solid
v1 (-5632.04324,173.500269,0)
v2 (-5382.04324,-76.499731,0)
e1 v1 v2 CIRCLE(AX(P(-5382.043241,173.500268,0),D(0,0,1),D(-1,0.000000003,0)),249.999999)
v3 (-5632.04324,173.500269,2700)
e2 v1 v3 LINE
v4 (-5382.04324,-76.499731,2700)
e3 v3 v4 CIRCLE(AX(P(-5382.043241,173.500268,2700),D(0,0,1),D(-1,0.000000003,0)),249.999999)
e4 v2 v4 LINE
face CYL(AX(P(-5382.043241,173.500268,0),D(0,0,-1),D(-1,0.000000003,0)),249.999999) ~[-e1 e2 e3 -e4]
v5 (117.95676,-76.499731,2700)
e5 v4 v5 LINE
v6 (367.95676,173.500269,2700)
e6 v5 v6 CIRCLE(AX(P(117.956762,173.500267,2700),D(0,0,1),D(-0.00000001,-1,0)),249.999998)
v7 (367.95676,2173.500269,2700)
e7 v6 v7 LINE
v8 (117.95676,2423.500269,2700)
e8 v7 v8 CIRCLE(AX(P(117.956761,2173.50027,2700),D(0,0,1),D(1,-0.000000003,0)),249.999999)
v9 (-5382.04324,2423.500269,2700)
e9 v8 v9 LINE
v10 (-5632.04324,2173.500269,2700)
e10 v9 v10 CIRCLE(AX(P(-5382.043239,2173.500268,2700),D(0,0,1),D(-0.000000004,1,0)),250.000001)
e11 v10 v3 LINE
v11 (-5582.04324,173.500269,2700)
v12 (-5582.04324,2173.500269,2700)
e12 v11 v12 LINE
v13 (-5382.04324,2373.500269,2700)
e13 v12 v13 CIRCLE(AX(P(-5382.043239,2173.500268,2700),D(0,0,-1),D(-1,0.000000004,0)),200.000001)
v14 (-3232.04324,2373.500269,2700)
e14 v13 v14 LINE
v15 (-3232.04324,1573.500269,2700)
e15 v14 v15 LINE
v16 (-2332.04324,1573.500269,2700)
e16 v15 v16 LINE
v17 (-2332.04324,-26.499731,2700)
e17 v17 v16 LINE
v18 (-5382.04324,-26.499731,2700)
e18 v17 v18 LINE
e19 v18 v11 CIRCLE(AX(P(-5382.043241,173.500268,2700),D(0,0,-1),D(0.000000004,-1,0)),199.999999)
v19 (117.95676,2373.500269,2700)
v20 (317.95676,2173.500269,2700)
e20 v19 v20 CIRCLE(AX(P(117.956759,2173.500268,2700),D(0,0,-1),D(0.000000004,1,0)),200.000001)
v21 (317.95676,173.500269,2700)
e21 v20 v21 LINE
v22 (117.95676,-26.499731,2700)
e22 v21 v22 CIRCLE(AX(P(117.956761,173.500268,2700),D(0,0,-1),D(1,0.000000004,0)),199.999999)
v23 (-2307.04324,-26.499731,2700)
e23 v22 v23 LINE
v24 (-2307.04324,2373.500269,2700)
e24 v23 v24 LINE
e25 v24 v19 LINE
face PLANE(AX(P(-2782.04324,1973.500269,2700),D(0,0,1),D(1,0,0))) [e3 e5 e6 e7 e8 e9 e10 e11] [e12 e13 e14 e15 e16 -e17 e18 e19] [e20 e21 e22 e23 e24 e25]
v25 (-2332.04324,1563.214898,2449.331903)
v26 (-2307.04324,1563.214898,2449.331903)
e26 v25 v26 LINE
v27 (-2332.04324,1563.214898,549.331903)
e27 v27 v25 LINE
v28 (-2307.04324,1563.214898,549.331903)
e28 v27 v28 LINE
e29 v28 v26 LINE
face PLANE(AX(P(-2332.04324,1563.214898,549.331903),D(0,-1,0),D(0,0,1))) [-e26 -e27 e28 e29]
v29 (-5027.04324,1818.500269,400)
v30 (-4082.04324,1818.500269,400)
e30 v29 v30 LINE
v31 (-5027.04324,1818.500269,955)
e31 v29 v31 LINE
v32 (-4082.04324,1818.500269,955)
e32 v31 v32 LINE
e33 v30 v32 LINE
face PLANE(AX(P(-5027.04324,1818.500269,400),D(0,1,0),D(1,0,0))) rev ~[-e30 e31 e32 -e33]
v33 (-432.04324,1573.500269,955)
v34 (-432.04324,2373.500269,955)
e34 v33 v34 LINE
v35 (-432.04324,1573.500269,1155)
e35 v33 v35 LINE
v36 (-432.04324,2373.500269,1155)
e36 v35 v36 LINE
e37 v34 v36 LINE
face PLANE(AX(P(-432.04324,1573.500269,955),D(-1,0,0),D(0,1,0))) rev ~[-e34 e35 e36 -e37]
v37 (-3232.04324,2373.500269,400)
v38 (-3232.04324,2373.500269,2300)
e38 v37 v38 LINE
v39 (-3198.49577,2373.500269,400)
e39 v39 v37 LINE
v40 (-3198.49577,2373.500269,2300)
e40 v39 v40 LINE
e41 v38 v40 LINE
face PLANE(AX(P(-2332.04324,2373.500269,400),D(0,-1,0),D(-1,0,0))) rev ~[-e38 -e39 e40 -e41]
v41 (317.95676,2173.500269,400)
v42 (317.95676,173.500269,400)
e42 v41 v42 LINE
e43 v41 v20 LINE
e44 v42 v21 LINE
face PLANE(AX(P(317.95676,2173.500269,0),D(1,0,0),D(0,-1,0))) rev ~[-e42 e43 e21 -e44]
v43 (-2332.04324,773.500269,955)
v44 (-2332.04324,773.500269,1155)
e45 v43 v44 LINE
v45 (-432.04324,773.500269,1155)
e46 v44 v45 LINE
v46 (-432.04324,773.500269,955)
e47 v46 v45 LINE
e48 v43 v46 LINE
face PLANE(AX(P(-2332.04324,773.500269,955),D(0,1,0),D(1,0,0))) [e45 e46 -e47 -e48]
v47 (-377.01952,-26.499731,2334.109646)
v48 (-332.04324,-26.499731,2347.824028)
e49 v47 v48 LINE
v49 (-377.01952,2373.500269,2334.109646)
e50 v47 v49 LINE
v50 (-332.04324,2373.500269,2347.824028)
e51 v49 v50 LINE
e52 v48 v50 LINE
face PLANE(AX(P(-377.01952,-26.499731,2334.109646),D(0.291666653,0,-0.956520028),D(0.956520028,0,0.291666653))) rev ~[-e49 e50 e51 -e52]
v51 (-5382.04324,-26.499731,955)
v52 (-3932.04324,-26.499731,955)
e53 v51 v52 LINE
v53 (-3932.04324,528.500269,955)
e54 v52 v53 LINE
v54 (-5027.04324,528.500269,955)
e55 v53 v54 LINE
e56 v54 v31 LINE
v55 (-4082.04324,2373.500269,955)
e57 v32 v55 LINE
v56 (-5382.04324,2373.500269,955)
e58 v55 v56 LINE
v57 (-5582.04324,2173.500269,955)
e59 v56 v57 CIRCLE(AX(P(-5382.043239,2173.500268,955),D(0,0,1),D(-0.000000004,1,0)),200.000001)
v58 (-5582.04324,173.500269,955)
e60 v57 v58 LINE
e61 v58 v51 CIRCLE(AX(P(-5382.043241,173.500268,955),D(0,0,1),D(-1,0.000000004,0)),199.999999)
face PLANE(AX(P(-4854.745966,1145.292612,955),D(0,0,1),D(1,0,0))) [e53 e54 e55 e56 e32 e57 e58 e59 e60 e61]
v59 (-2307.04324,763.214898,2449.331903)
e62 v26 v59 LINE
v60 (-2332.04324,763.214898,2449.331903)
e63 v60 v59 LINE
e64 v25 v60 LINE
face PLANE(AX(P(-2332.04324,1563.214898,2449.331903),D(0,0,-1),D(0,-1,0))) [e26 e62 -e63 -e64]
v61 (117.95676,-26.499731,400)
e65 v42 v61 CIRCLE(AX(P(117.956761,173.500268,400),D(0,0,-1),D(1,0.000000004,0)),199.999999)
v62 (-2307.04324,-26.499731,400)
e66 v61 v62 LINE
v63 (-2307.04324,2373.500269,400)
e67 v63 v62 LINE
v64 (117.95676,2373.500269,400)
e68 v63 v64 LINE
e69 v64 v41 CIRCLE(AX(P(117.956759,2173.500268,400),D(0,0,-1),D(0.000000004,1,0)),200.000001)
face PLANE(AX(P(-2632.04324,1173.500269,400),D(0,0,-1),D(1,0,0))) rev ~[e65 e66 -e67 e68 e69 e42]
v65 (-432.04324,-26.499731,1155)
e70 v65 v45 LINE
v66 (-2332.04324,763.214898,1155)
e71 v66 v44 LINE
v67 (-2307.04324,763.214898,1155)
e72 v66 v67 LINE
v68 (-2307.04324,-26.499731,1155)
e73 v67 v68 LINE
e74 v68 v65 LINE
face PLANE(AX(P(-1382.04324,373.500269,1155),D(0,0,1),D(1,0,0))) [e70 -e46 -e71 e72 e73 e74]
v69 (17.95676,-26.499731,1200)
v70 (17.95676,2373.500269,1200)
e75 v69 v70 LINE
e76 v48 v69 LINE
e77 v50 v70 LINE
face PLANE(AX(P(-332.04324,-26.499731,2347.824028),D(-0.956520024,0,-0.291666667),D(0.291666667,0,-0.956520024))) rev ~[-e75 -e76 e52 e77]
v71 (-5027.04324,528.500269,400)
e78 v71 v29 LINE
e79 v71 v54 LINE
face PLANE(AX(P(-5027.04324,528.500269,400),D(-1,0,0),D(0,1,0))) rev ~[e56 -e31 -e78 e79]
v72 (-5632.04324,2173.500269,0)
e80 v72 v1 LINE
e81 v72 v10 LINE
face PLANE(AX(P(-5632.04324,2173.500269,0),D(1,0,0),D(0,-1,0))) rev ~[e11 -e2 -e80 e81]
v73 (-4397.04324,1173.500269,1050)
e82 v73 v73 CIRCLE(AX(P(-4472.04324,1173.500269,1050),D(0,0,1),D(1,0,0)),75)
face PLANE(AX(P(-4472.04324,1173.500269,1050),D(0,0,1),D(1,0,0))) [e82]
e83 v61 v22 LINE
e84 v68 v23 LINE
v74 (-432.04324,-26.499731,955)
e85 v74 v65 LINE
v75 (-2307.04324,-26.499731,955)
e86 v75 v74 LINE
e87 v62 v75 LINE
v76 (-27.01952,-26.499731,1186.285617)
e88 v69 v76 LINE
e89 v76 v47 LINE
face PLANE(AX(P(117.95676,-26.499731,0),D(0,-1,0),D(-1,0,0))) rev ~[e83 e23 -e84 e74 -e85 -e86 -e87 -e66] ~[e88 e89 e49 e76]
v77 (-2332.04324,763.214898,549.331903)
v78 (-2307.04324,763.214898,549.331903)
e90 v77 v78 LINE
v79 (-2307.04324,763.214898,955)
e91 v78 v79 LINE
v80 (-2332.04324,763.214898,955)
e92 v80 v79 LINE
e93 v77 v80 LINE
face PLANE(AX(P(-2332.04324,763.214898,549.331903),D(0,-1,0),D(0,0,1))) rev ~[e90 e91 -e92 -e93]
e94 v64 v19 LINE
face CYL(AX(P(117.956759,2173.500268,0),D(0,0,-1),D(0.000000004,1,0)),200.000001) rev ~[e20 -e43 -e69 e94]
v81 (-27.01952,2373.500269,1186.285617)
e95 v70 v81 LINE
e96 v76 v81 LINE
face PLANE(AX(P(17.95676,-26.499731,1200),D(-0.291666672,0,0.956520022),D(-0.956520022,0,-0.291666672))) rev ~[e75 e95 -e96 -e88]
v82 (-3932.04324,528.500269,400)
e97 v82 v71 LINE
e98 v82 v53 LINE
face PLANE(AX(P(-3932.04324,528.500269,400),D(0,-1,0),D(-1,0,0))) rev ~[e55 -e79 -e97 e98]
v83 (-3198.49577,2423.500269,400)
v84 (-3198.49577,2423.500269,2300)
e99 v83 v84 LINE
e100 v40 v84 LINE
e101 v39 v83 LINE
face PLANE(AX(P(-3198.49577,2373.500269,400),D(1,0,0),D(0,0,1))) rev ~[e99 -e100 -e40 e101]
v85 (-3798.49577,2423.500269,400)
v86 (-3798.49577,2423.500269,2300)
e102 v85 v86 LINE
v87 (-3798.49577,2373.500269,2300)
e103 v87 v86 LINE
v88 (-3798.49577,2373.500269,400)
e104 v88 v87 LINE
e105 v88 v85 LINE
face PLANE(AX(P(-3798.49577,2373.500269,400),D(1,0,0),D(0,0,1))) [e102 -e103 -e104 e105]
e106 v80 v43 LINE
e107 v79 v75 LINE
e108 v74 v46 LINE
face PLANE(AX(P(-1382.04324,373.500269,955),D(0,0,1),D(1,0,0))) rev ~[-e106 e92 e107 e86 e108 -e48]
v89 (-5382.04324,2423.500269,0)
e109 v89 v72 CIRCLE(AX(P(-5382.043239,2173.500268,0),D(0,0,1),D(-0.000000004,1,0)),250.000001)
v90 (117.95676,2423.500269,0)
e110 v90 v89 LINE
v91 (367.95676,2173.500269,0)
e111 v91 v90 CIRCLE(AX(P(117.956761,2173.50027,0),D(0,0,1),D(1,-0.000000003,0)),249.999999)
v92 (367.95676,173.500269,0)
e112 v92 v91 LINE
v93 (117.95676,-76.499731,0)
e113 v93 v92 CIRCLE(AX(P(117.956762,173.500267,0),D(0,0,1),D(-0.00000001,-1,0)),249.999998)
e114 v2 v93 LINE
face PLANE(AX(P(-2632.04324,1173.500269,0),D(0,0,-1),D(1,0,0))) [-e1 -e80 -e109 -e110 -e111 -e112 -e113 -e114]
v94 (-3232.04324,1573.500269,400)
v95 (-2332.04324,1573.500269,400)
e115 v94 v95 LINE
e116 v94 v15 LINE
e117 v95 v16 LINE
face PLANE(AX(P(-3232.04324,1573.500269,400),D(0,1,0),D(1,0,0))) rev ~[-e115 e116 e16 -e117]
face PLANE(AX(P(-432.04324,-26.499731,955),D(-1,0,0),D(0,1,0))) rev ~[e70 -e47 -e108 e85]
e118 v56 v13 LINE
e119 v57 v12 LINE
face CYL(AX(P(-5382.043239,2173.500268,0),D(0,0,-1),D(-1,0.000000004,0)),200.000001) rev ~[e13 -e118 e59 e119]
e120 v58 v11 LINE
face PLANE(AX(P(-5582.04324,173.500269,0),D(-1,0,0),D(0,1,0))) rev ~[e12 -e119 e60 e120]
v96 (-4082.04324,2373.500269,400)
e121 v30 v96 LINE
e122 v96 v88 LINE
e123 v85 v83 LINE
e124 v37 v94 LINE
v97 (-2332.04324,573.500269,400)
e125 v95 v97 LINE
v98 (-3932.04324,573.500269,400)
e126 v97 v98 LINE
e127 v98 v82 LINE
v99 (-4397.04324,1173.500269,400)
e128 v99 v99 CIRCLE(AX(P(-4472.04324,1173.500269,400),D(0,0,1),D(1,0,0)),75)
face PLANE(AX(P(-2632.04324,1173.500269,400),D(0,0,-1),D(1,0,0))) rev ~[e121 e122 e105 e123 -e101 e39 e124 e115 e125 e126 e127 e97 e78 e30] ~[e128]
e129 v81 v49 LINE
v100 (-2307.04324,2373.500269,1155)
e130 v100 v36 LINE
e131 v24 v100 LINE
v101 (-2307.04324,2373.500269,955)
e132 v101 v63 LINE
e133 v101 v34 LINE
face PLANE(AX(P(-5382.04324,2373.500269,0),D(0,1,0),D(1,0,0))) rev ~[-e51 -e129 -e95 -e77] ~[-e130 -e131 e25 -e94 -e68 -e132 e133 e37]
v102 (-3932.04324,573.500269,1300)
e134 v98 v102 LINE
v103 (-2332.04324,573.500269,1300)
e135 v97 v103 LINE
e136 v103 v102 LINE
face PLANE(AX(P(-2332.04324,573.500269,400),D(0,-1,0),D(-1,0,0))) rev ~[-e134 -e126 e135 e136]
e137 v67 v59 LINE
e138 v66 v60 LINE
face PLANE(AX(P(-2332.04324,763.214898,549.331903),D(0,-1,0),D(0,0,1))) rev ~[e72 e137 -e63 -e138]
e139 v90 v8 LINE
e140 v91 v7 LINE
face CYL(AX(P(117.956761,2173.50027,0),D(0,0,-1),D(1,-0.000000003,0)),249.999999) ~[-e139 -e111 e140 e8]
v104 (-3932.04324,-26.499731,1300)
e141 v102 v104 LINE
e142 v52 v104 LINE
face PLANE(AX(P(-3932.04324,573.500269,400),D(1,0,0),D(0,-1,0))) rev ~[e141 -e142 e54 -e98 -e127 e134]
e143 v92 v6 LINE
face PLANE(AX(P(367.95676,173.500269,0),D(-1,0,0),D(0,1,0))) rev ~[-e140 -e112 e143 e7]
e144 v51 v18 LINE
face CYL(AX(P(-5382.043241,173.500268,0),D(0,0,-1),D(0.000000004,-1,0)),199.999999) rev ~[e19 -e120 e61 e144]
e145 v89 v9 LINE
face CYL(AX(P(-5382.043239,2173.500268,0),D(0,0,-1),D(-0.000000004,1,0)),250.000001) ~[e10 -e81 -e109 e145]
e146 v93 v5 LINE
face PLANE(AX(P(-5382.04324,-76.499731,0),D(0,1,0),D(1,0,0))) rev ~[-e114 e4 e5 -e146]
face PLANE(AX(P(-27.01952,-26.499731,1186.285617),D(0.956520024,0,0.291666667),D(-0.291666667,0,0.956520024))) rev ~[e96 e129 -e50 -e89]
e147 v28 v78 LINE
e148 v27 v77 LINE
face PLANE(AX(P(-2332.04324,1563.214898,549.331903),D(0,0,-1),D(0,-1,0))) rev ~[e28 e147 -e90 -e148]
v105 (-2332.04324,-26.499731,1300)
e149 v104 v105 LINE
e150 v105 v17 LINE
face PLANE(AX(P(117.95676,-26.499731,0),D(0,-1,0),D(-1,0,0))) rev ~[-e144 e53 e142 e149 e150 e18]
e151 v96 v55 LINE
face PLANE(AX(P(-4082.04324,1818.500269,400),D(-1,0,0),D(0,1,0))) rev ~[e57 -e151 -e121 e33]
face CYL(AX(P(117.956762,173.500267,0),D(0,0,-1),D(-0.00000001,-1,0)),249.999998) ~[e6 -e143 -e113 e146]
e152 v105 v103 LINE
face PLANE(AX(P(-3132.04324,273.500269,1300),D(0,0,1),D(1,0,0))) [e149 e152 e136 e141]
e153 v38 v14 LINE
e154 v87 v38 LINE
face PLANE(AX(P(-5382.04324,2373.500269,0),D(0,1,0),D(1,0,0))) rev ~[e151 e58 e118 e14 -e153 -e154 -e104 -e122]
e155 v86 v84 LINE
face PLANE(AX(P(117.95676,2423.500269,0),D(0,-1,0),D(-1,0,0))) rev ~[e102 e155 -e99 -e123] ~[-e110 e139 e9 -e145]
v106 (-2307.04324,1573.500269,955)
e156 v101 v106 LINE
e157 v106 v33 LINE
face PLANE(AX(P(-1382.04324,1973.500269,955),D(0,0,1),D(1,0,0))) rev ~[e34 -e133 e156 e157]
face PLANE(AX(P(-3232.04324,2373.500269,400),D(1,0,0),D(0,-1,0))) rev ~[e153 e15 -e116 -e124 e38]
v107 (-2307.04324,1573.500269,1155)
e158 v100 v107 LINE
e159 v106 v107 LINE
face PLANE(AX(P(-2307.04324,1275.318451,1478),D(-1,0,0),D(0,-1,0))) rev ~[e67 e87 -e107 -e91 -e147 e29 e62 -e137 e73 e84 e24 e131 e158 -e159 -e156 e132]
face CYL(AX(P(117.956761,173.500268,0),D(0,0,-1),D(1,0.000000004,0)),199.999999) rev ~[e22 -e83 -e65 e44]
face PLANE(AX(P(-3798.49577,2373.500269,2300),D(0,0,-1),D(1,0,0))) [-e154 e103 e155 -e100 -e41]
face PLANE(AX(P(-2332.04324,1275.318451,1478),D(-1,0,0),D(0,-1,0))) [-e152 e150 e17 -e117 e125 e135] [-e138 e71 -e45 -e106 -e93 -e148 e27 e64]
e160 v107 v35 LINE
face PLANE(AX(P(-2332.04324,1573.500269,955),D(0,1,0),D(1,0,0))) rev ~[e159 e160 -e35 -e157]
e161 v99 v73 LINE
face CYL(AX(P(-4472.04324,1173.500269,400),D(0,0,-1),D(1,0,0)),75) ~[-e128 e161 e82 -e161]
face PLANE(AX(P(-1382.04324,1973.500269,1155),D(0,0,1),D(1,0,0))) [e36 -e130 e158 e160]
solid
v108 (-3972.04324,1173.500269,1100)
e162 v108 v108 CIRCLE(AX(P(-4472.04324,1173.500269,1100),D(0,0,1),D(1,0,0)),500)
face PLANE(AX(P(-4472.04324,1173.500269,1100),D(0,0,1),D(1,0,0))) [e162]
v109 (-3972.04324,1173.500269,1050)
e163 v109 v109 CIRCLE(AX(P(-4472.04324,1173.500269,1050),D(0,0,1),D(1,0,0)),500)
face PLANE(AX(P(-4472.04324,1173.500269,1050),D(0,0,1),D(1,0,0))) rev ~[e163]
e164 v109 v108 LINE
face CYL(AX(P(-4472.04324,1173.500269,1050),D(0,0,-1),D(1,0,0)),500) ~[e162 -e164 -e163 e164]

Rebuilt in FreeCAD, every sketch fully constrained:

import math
import FreeCAD as App
import Part
import Sketcher
Q = App.Units.Quantity

doc = App.newDocument("Part")
body = doc.addObject("PartDesign::Body", "Body")

sketch1 = body.newObject("Sketcher::SketchObject", "Sketch")
sketch1.AttachmentSupport = (doc.getObject("XY_Plane"), [""])
sketch1.MapMode = "FlatFace"
sketch1.addGeometry([
    Part.LineSegment(App.Vector(117.95676, 2423.500269, 0), App.Vector(-5382.04324, 2423.500269, 0)),
    Part.ArcOfCircle(Part.Circle(App.Vector(-5382.043239, 2173.500268, 0), App.Vector(0, 0, 1), 250.000001), math.radians(90), math.radians(180)),
    Part.LineSegment(App.Vector(-5632.04324, 2173.500269, 0), App.Vector(-5632.04324, 173.500269, 0)),
    Part.ArcOfCircle(Part.Circle(App.Vector(-5382.043241, 173.500268, 0), App.Vector(0, 0, 1), 249.999999), math.radians(180), math.radians(270)),
    Part.LineSegment(App.Vector(-5382.04324, -76.499731, 0), App.Vector(117.95676, -76.499731, 0)),
    Part.ArcOfCircle(Part.Circle(App.Vector(117.956762, 173.500267, 0), App.Vector(0, 0, 1), 249.999998), math.radians(-90.000001), math.radians(0.000001)),
    Part.LineSegment(App.Vector(367.95676, 173.500269, 0), App.Vector(367.95676, 2173.500269, 0)),
    Part.ArcOfCircle(Part.Circle(App.Vector(117.956761, 2173.50027, 0), App.Vector(0, 0, 1), 249.999999), math.radians(0), math.radians(90)),
    Part.LineSegment(App.Vector(117.95676, -26.499731, 0), App.Vector(-5382.04324, -26.499731, 0)),
    Part.ArcOfCircle(Part.Circle(App.Vector(-5382.043241, 173.500268, 0), App.Vector(0, 0, 1), 199.999999), math.radians(180), math.radians(270)),
    Part.LineSegment(App.Vector(-5582.04324, 173.500269, 0), App.Vector(-5582.04324, 2173.500269, 0)),
    Part.ArcOfCircle(Part.Circle(App.Vector(-5382.043239, 2173.500268, 0), App.Vector(0, 0, 1), 200.000001), math.radians(90), math.radians(180)),
    Part.LineSegment(App.Vector(-5382.04324, 2373.500269, 0), App.Vector(117.95676, 2373.500269, 0)),
    Part.ArcOfCircle(Part.Circle(App.Vector(117.956759, 2173.500268, 0), App.Vector(0, 0, 1), 200.000001), math.radians(0), math.radians(90)),
    Part.LineSegment(App.Vector(317.95676, 2173.500269, 0), App.Vector(317.95676, 173.500269, 0)),
    Part.ArcOfCircle(Part.Circle(App.Vector(117.956761, 173.500268, 0), App.Vector(0, 0, 1), 199.999999), math.radians(-90), math.radians(0)),
], False)
sketch1.addConstraint([
    Sketcher.Constraint("Tangent", 0, 2, 1, 1),
    Sketcher.Constraint("Tangent", 1, 2, 2, 1),
    Sketcher.Constraint("Tangent", 2, 2, 3, 1),
    Sketcher.Constraint("Tangent", 3, 2, 4, 1),
    Sketcher.Constraint("Tangent", 4, 2, 5, 1),
    Sketcher.Constraint("Tangent", 5, 2, 6, 1),
    Sketcher.Constraint("Tangent", 6, 2, 7, 1),
    Sketcher.Constraint("Tangent", 7, 2, 0, 1),
    Sketcher.Constraint("Tangent", 8, 2, 9, 2),
    Sketcher.Constraint("Tangent", 9, 1, 10, 1),
    Sketcher.Constraint("Tangent", 10, 2, 11, 2),
    Sketcher.Constraint("Tangent", 11, 1, 12, 1),
    Sketcher.Constraint("Tangent", 12, 2, 13, 2),
    Sketcher.Constraint("Tangent", 13, 1, 14, 1),
    Sketcher.Constraint("Tangent", 14, 2, 15, 2),
    Sketcher.Constraint("Tangent", 15, 1, 8, 1),
    Sketcher.Constraint("Horizontal", 0),
    Sketcher.Constraint("Vertical", 2),
    Sketcher.Constraint("Horizontal", 4),
    Sketcher.Constraint("Vertical", 6),
    Sketcher.Constraint("Horizontal", 8),
    Sketcher.Constraint("Vertical", 10),
    Sketcher.Constraint("Horizontal", 12),
    Sketcher.Constraint("Vertical", 14),
    Sketcher.Constraint("Coincident", 9, 3, 3, 3),
    Sketcher.Constraint("Coincident", 11, 3, 1, 3),
    Sketcher.Constraint("Coincident", 13, 3, 7, 3),
    Sketcher.Constraint("Equal", 1, 3),
    Sketcher.Constraint("Equal", 3, 5),
    Sketcher.Constraint("Equal", 5, 7),
    Sketcher.Constraint("Equal", 13, 15),
    Sketcher.Constraint("Radius", 1, Q("250.000001 mm")),
    Sketcher.Constraint("Radius", 9, Q("199.999999 mm")),
    Sketcher.Constraint("DistanceX", 0, 2, 0, 1, Q("5500 mm")),
    Sketcher.Constraint("DistanceY", 2, 2, 2, 1, Q("2000 mm")),
    Sketcher.Constraint("DistanceX", 1, 3, -1, 1, Q("5382.043239 mm")),
    Sketcher.Constraint("DistanceY", -1, 1, 3, 3, Q("173.500268 mm")),
])
pad1 = body.newObject("PartDesign::Pad", "Pad")
pad1.Profile = sketch1
pad1.Length = 2700

sketch2 = body.newObject("Sketcher::SketchObject", "Sketch001")
sketch2.AttachmentSupport = (doc.getObject("XY_Plane"), [""])
sketch2.MapMode = "FlatFace"
sketch2.addGeometry([
    Part.ArcOfCircle(Part.Circle(App.Vector(-5382.043241, 173.500268, 0), App.Vector(0, 0, 1), 199.999999), math.radians(180), math.radians(270)),
    Part.LineSegment(App.Vector(-5582.04324, 173.500269, 0), App.Vector(-5582.04324, 2173.500269, 0)),
    Part.ArcOfCircle(Part.Circle(App.Vector(-5382.043239, 2173.500268, 0), App.Vector(0, 0, 1), 200.000001), math.radians(90), math.radians(180)),
    Part.LineSegment(App.Vector(-5382.04324, 2373.500269, 0), App.Vector(117.95676, 2373.500269, 0)),
    Part.ArcOfCircle(Part.Circle(App.Vector(117.956759, 2173.500268, 0), App.Vector(0, 0, 1), 200.000001), math.radians(0), math.radians(90)),
    Part.LineSegment(App.Vector(317.95676, 2173.500269, 0), App.Vector(317.95676, 173.500269, 0)),
    Part.ArcOfCircle(Part.Circle(App.Vector(117.956761, 173.500268, 0), App.Vector(0, 0, 1), 199.999999), math.radians(-90), math.radians(0)),
    Part.LineSegment(App.Vector(117.95676, -26.499731, 0), App.Vector(-5382.04324, -26.499731, 0)),
], False)
sketch2.addConstraint([
    Sketcher.Constraint("Tangent", 0, 1, 1, 1),
    Sketcher.Constraint("Tangent", 1, 2, 2, 2),
    Sketcher.Constraint("Tangent", 2, 1, 3, 1),
    Sketcher.Constraint("Tangent", 3, 2, 4, 2),
    Sketcher.Constraint("Tangent", 4, 1, 5, 1),
    Sketcher.Constraint("Tangent", 5, 2, 6, 2),
    Sketcher.Constraint("Tangent", 6, 1, 7, 1),
    Sketcher.Constraint("Tangent", 7, 2, 0, 2),
    Sketcher.Constraint("Vertical", 1),
    Sketcher.Constraint("Horizontal", 3),
    Sketcher.Constraint("Vertical", 5),
    Sketcher.Constraint("Horizontal", 7),
    Sketcher.Constraint("Equal", 0, 2),
    Sketcher.Constraint("Equal", 2, 4),
    Sketcher.Constraint("Equal", 4, 6),
    Sketcher.Constraint("Radius", 0, Q("199.999999 mm")),
    Sketcher.Constraint("DistanceX", 3, 1, 3, 2, Q("5500 mm")),
    Sketcher.Constraint("DistanceY", 1, 1, 1, 2, Q("2000 mm")),
    Sketcher.Constraint("DistanceX", 0, 3, -1, 1, Q("5382.043241 mm")),
    Sketcher.Constraint("DistanceY", -1, 1, 0, 3, Q("173.500268 mm")),
])
pad2 = body.newObject("PartDesign::Pad", "Pad001")
pad2.Profile = sketch2
pad2.Length = 400

sketch3 = body.newObject("Sketcher::SketchObject", "Sketch002")
sketch3.AttachmentSupport = (doc.getObject("XY_Plane"), [""])
sketch3.MapMode = "FlatFace"
sketch3.AttachmentOffset = App.Placement(App.Vector(0, 0, 400), App.Rotation())
sketch3.addGeometry([
    Part.LineSegment(App.Vector(-4082.04324, 1818.500269, 0), App.Vector(-4082.04324, 2373.500269, 0)),
    Part.LineSegment(App.Vector(-4082.04324, 2373.500269, 0), App.Vector(-5382.04324, 2373.500269, 0)),
    Part.ArcOfCircle(Part.Circle(App.Vector(-5382.043239, 2173.500268, 0), App.Vector(0, 0, 1), 200.000001), math.radians(90), math.radians(180)),
    Part.LineSegment(App.Vector(-5582.04324, 2173.500269, 0), App.Vector(-5582.04324, 173.500269, 0)),
    Part.ArcOfCircle(Part.Circle(App.Vector(-5382.043241, 173.500268, 0), App.Vector(0, 0, 1), 199.999999), math.radians(180), math.radians(270)),
    Part.LineSegment(App.Vector(-5382.04324, -26.499731, 0), App.Vector(-3932.04324, -26.499731, 0)),
    Part.LineSegment(App.Vector(-3932.04324, -26.499731, 0), App.Vector(-3932.04324, 528.500269, 0)),
    Part.LineSegment(App.Vector(-3932.04324, 528.500269, 0), App.Vector(-5027.04324, 528.500269, 0)),
    Part.LineSegment(App.Vector(-5027.04324, 528.500269, 0), App.Vector(-5027.04324, 1818.500269, 0)),
    Part.LineSegment(App.Vector(-5027.04324, 1818.500269, 0), App.Vector(-4082.04324, 1818.500269, 0)),
], False)
sketch3.addConstraint([
    Sketcher.Constraint("Coincident", 0, 2, 1, 1),
    Sketcher.Constraint("Tangent", 1, 2, 2, 1),
    Sketcher.Constraint("Tangent", 2, 2, 3, 1),
    Sketcher.Constraint("Tangent", 3, 2, 4, 1),
    Sketcher.Constraint("Tangent", 4, 2, 5, 1),
    Sketcher.Constraint("Coincident", 5, 2, 6, 1),
    Sketcher.Constraint("Coincident", 6, 2, 7, 1),
    Sketcher.Constraint("Coincident", 7, 2, 8, 1),
    Sketcher.Constraint("Coincident", 8, 2, 9, 1),
    Sketcher.Constraint("Coincident", 9, 2, 0, 1),
    Sketcher.Constraint("Vertical", 0),
    Sketcher.Constraint("Horizontal", 1),
    Sketcher.Constraint("Vertical", 3),
    Sketcher.Constraint("Horizontal", 5),
    Sketcher.Constraint("Vertical", 6),
    Sketcher.Constraint("Horizontal", 7),
    Sketcher.Constraint("Vertical", 8),
    Sketcher.Constraint("Horizontal", 9),
    Sketcher.Constraint("Equal", 2, 4),
    Sketcher.Constraint("Equal", 0, 6),
    Sketcher.Constraint("Radius", 2, Q("200.000001 mm")),
    Sketcher.Constraint("DistanceX", 1, 2, 1, 1, Q("1300 mm")),
    Sketcher.Constraint("DistanceX", 5, 1, 5, 2, Q("1450 mm")),
    Sketcher.Constraint("DistanceX", 7, 2, 7, 1, Q("1095 mm")),
    Sketcher.Constraint("DistanceY", 0, 1, 0, 2, Q("555 mm")),
    Sketcher.Constraint("DistanceY", 3, 2, 3, 1, Q("2000 mm")),
    Sketcher.Constraint("DistanceX", 2, 3, -1, 1, Q("5382.043239 mm")),
    Sketcher.Constraint("DistanceY", -1, 1, 2, 3, Q("2173.500268 mm")),
])
pad3 = body.newObject("PartDesign::Pad", "Pad002")
pad3.Profile = sketch3
pad3.Length = 555

sketch4 = body.newObject("Sketcher::SketchObject", "Sketch003")
sketch4.AttachmentSupport = (doc.getObject("XY_Plane"), [""])
sketch4.MapMode = "FlatFace"
sketch4.AttachmentOffset = App.Placement(App.Vector(0, 0, 400), App.Rotation())
sketch4.addGeometry([
    Part.LineSegment(App.Vector(-3932.04324, -26.499731, 0), App.Vector(-2332.04324, -26.499731, 0)),
    Part.LineSegment(App.Vector(-2332.04324, -26.499731, 0), App.Vector(-2332.04324, 573.500269, 0)),
    Part.LineSegment(App.Vector(-2332.04324, 573.500269, 0), App.Vector(-3932.04324, 573.500269, 0)),
    Part.LineSegment(App.Vector(-3932.04324, 573.500269, 0), App.Vector(-3932.04324, -26.499731, 0)),
], False)
sketch4.addConstraint([
    Sketcher.Constraint("Coincident", 0, 2, 1, 1),
    Sketcher.Constraint("Coincident", 1, 2, 2, 1),
    Sketcher.Constraint("Coincident", 2, 2, 3, 1),
    Sketcher.Constraint("Coincident", 3, 2, 0, 1),
    Sketcher.Constraint("Horizontal", 0),
    Sketcher.Constraint("Vertical", 1),
    Sketcher.Constraint("Horizontal", 2),
    Sketcher.Constraint("Vertical", 3),
    Sketcher.Constraint("DistanceX", 0, 1, 0, 2, Q("1600 mm")),
    Sketcher.Constraint("DistanceY", 1, 1, 1, 2, Q("600 mm")),
    Sketcher.Constraint("DistanceX", 0, 2, -1, 1, Q("2332.04324 mm")),
    Sketcher.Constraint("DistanceY", 0, 2, -1, 1, Q("26.499731 mm")),
])
pad4 = body.newObject("PartDesign::Pad", "Pad003")
pad4.Profile = sketch4
pad4.Length = 900

sketch5 = body.newObject("Sketcher::SketchObject", "Sketch004")
sketch5.AttachmentSupport = (doc.getObject("XZ_Plane"), [""])
sketch5.MapMode = "FlatFace"
sketch5.AttachmentOffset = App.Placement(App.Vector(0, 0, 26.499731), App.Rotation())
sketch5.addGeometry([
    Part.LineSegment(App.Vector(-27.01952, 1186.285617, 0), App.Vector(-377.01952, 2334.109646, 0)),
    Part.LineSegment(App.Vector(-377.01952, 2334.109646, 0), App.Vector(-332.04324, 2347.824028, 0)),
    Part.LineSegment(App.Vector(-332.04324, 2347.824028, 0), App.Vector(17.95676, 1200, 0)),
    Part.LineSegment(App.Vector(17.95676, 1200, 0), App.Vector(-27.01952, 1186.285617, 0)),
], False)
sketch5.addConstraint([
    Sketcher.Constraint("Coincident", 0, 2, 1, 1),
    Sketcher.Constraint("Coincident", 1, 2, 2, 1),
    Sketcher.Constraint("Coincident", 2, 2, 3, 1),
    Sketcher.Constraint("Coincident", 3, 2, 0, 1),
    Sketcher.Constraint("Perpendicular", 0, 1),
    Sketcher.Constraint("Perpendicular", 1, 2),
    Sketcher.Constraint("Perpendicular", 2, 3),
    Sketcher.Constraint("Distance", 0, Q("1200.000001 mm")),
    Sketcher.Constraint("DistanceY", -1, 1, 2, 2, Q("1200 mm")),
    Sketcher.Constraint("DistanceX", 1, 2, 2, 2, Q("350 mm")),
    Sketcher.Constraint("Distance", 1, Q("47.02074 mm")),
    Sketcher.Constraint("DistanceX", 0, 2, -1, 1, Q("377.01952 mm")),
])
pad5 = body.newObject("PartDesign::Pad", "Pad004")
pad5.Profile = sketch5
pad5.Length = 2400
pad5.Reversed = True

sketch6 = body.newObject("Sketcher::SketchObject", "Sketch005")
sketch6.AttachmentSupport = (doc.getObject("XY_Plane"), [""])
sketch6.MapMode = "FlatFace"
sketch6.AttachmentOffset = App.Placement(App.Vector(0, 0, 955), App.Rotation())
sketch6.addGeometry([
    Part.LineSegment(App.Vector(-2332.04324, 773.500269, 0), App.Vector(-2332.04324, -26.499731, 0)),
    Part.LineSegment(App.Vector(-2332.04324, -26.499731, 0), App.Vector(-432.04324, -26.499731, 0)),
    Part.LineSegment(App.Vector(-432.04324, -26.499731, 0), App.Vector(-432.04324, 773.500269, 0)),
    Part.LineSegment(App.Vector(-432.04324, 773.500269, 0), App.Vector(-2332.04324, 773.500269, 0)),
    Part.LineSegment(App.Vector(-2332.04324, 2373.500269, 0), App.Vector(-2332.04324, 1573.500269, 0)),
    Part.LineSegment(App.Vector(-2332.04324, 1573.500269, 0), App.Vector(-432.04324, 1573.500269, 0)),
    Part.LineSegment(App.Vector(-432.04324, 1573.500269, 0), App.Vector(-432.04324, 2373.500269, 0)),
    Part.LineSegment(App.Vector(-432.04324, 2373.500269, 0), App.Vector(-2332.04324, 2373.500269, 0)),
], False)
sketch6.addConstraint([
    Sketcher.Constraint("Coincident", 0, 2, 1, 1),
    Sketcher.Constraint("Coincident", 1, 2, 2, 1),
    Sketcher.Constraint("Coincident", 2, 2, 3, 1),
    Sketcher.Constraint("Coincident", 3, 2, 0, 1),
    Sketcher.Constraint("Coincident", 4, 2, 5, 1),
    Sketcher.Constraint("Coincident", 5, 2, 6, 1),
    Sketcher.Constraint("Coincident", 6, 2, 7, 1),
    Sketcher.Constraint("Coincident", 7, 2, 4, 1),
    Sketcher.Constraint("Vertical", 0),
    Sketcher.Constraint("Horizontal", 1),
    Sketcher.Constraint("Vertical", 2),
    Sketcher.Constraint("Horizontal", 3),
    Sketcher.Constraint("Vertical", 4),
    Sketcher.Constraint("Horizontal", 5),
    Sketcher.Constraint("Vertical", 6),
    Sketcher.Constraint("Horizontal", 7),
    Sketcher.Constraint("Vertical", 3, 2, 4, 2),
    Sketcher.Constraint("Vertical", 2, 2, 5, 2),
    Sketcher.Constraint("Equal", 2, 4),
    Sketcher.Constraint("DistanceX", 1, 1, 1, 2, Q("1900 mm")),
    Sketcher.Constraint("DistanceY", 0, 2, 0, 1, Q("800 mm")),
    Sketcher.Constraint("DistanceY", 3, 2, 4, 2, Q("800 mm")),
    Sketcher.Constraint("DistanceX", 0, 2, -1, 1, Q("2332.04324 mm")),
    Sketcher.Constraint("DistanceY", 0, 2, -1, 1, Q("26.499731 mm")),
])
pad6 = body.newObject("PartDesign::Pad", "Pad005")
pad6.Profile = sketch6
pad6.Length = 200

sketch7 = body.newObject("Sketcher::SketchObject", "Sketch006")
sketch7.AttachmentSupport = (doc.getObject("YZ_Plane"), [""])
sketch7.MapMode = "FlatFace"
sketch7.AttachmentOffset = App.Placement(App.Vector(0, 0, -2332.04324), App.Rotation())
sketch7.addGeometry([
    Part.LineSegment(App.Vector(2373.500269, 400, 0), App.Vector(-26.499731, 400, 0)),
    Part.LineSegment(App.Vector(-26.499731, 400, 0), App.Vector(-26.499731, 2700, 0)),
    Part.LineSegment(App.Vector(-26.499731, 2700, 0), App.Vector(2373.500269, 2700, 0)),
    Part.LineSegment(App.Vector(2373.500269, 2700, 0), App.Vector(2373.500269, 400, 0)),
    Part.LineSegment(App.Vector(763.214898, 549.331903, 0), App.Vector(1563.214898, 549.331903, 0)),
    Part.LineSegment(App.Vector(1563.214898, 549.331903, 0), App.Vector(1563.214898, 2449.331903, 0)),
    Part.LineSegment(App.Vector(1563.214898, 2449.331903, 0), App.Vector(763.214898, 2449.331903, 0)),
    Part.LineSegment(App.Vector(763.214898, 2449.331903, 0), App.Vector(763.214898, 549.331903, 0)),
], False)
sketch7.addConstraint([
    Sketcher.Constraint("Coincident", 0, 2, 1, 1),
    Sketcher.Constraint("Coincident", 1, 2, 2, 1),
    Sketcher.Constraint("Coincident", 2, 2, 3, 1),
    Sketcher.Constraint("Coincident", 3, 2, 0, 1),
    Sketcher.Constraint("Coincident", 4, 2, 5, 1),
    Sketcher.Constraint("Coincident", 5, 2, 6, 1),
    Sketcher.Constraint("Coincident", 6, 2, 7, 1),
    Sketcher.Constraint("Coincident", 7, 2, 4, 1),
    Sketcher.Constraint("Horizontal", 0),
    Sketcher.Constraint("Vertical", 1),
    Sketcher.Constraint("Horizontal", 2),
    Sketcher.Constraint("Vertical", 3),
    Sketcher.Constraint("Horizontal", 4),
    Sketcher.Constraint("Vertical", 5),
    Sketcher.Constraint("Horizontal", 6),
    Sketcher.Constraint("Vertical", 7),
    Sketcher.Constraint("DistanceX", 0, 2, 0, 1, Q("2400 mm")),
    Sketcher.Constraint("DistanceX", 4, 1, 4, 2, Q("800 mm")),
    Sketcher.Constraint("DistanceY", 1, 1, 1, 2, Q("2300 mm")),
    Sketcher.Constraint("DistanceY", 5, 1, 5, 2, Q("1900 mm")),
    Sketcher.Constraint("DistanceY", -1, 1, 0, 2, Q("400 mm")),
    Sketcher.Constraint("DistanceX", -1, 1, 4, 2, Q("1563.214898 mm")),
    Sketcher.Constraint("DistanceX", 0, 2, -1, 1, Q("26.499731 mm")),
    Sketcher.Constraint("DistanceY", -1, 1, 4, 2, Q("549.331903 mm")),
])
pad7 = body.newObject("PartDesign::Pad", "Pad006")
pad7.Profile = sketch7
pad7.Length = 25

sketch8 = body.newObject("Sketcher::SketchObject", "Sketch007")
sketch8.AttachmentSupport = (doc.getObject("XZ_Plane"), [""])
sketch8.MapMode = "FlatFace"
sketch8.AttachmentOffset = App.Placement(App.Vector(0, 0, -2373.500269), App.Rotation())
sketch8.addGeometry([
    Part.LineSegment(App.Vector(-3798.49577, 2300, 0), App.Vector(-3798.49577, 400, 0)),
    Part.LineSegment(App.Vector(-3798.49577, 400, 0), App.Vector(-3198.49577, 400, 0)),
    Part.LineSegment(App.Vector(-3198.49577, 400, 0), App.Vector(-3198.49577, 2300, 0)),
    Part.LineSegment(App.Vector(-3198.49577, 2300, 0), App.Vector(-3798.49577, 2300, 0)),
], False)
sketch8.addConstraint([
    Sketcher.Constraint("Coincident", 0, 2, 1, 1),
    Sketcher.Constraint("Coincident", 1, 2, 2, 1),
    Sketcher.Constraint("Coincident", 2, 2, 3, 1),
    Sketcher.Constraint("Coincident", 3, 2, 0, 1),
    Sketcher.Constraint("Vertical", 0),
    Sketcher.Constraint("Horizontal", 1),
    Sketcher.Constraint("Vertical", 2),
    Sketcher.Constraint("Horizontal", 3),
    Sketcher.Constraint("DistanceX", 1, 1, 1, 2, Q("600 mm")),
    Sketcher.Constraint("DistanceY", 0, 2, 0, 1, Q("1900 mm")),
    Sketcher.Constraint("DistanceY", -1, 1, 0, 2, Q("400 mm")),
    Sketcher.Constraint("DistanceX", 0, 2, -1, 1, Q("3798.49577 mm")),
])
pocket1 = body.newObject("PartDesign::Pocket", "Pocket")
pocket1.Profile = sketch8
pocket1.Length = 55

sketch9 = body.newObject("Sketcher::SketchObject", "Sketch008")
sketch9.AttachmentSupport = (doc.getObject("XY_Plane"), [""])
sketch9.MapMode = "FlatFace"
sketch9.AttachmentOffset = App.Placement(App.Vector(0, 0, 400), App.Rotation())
sketch9.addGeometry(Part.Circle(App.Vector(-4472.04324, 1173.500269, 0), App.Vector(0, 0, 1), 75), False)
sketch9.addConstraint([
    Sketcher.Constraint("Diameter", 0, Q("150 mm")),
    Sketcher.Constraint("DistanceX", 0, 3, -1, 1, Q("4472.04324 mm")),
    Sketcher.Constraint("DistanceY", -1, 1, 0, 3, Q("1173.500269 mm")),
])
pad8 = body.newObject("PartDesign::Pad", "Pad007")
pad8.Profile = sketch9
pad8.Length = 650

sketch10 = body.newObject("Sketcher::SketchObject", "Sketch009")
sketch10.AttachmentSupport = (doc.getObject("XY_Plane"), [""])
sketch10.MapMode = "FlatFace"
sketch10.AttachmentOffset = App.Placement(App.Vector(0, 0, 400), App.Rotation())
sketch10.addGeometry([
    Part.LineSegment(App.Vector(-2332.04324, 1573.500269, 0), App.Vector(-2332.04324, 2373.500269, 0)),
    Part.LineSegment(App.Vector(-2332.04324, 2373.500269, 0), App.Vector(-3232.04324, 2373.500269, 0)),
    Part.LineSegment(App.Vector(-3232.04324, 2373.500269, 0), App.Vector(-3232.04324, 1573.500269, 0)),
    Part.LineSegment(App.Vector(-3232.04324, 1573.500269, 0), App.Vector(-2332.04324, 1573.500269, 0)),
], False)
sketch10.addConstraint([
    Sketcher.Constraint("Coincident", 0, 2, 1, 1),
    Sketcher.Constraint("Coincident", 1, 2, 2, 1),
    Sketcher.Constraint("Coincident", 2, 2, 3, 1),
    Sketcher.Constraint("Coincident", 3, 2, 0, 1),
    Sketcher.Constraint("Vertical", 0),
    Sketcher.Constraint("Horizontal", 1),
    Sketcher.Constraint("Vertical", 2),
    Sketcher.Constraint("Horizontal", 3),
    Sketcher.Constraint("DistanceX", 1, 2, 1, 1, Q("900 mm")),
    Sketcher.Constraint("DistanceY", 0, 1, 0, 2, Q("800 mm")),
    Sketcher.Constraint("DistanceX", 0, 2, -1, 1, Q("2332.04324 mm")),
    Sketcher.Constraint("DistanceY", -1, 1, 0, 2, Q("2373.500269 mm")),
])
pad9 = body.newObject("PartDesign::Pad", "Pad008")
pad9.Profile = sketch10
pad9.Length = 2300
body2 = doc.addObject("PartDesign::Body", "Body001")

sketch11 = body2.newObject("Sketcher::SketchObject", "Sketch010")
sketch11.AttachmentSupport = (doc.getObject("XY_Plane001"), [""])
sketch11.MapMode = "FlatFace"
sketch11.AttachmentOffset = App.Placement(App.Vector(0, 0, 1050), App.Rotation())
sketch11.addGeometry(Part.Circle(App.Vector(-4472.04324, 1173.500269, 0), App.Vector(0, 0, 1), 500), False)
sketch11.addConstraint([
    Sketcher.Constraint("Diameter", 0, Q("1000 mm")),
    Sketcher.Constraint("DistanceX", 0, 3, -1, 1, Q("4472.04324 mm")),
    Sketcher.Constraint("DistanceY", -1, 1, 0, 3, Q("1173.500269 mm")),
])
pad10 = body2.newObject("PartDesign::Pad", "Pad009")
pad10.Profile = sketch11
pad10.Length = 50

doc.recompute()
